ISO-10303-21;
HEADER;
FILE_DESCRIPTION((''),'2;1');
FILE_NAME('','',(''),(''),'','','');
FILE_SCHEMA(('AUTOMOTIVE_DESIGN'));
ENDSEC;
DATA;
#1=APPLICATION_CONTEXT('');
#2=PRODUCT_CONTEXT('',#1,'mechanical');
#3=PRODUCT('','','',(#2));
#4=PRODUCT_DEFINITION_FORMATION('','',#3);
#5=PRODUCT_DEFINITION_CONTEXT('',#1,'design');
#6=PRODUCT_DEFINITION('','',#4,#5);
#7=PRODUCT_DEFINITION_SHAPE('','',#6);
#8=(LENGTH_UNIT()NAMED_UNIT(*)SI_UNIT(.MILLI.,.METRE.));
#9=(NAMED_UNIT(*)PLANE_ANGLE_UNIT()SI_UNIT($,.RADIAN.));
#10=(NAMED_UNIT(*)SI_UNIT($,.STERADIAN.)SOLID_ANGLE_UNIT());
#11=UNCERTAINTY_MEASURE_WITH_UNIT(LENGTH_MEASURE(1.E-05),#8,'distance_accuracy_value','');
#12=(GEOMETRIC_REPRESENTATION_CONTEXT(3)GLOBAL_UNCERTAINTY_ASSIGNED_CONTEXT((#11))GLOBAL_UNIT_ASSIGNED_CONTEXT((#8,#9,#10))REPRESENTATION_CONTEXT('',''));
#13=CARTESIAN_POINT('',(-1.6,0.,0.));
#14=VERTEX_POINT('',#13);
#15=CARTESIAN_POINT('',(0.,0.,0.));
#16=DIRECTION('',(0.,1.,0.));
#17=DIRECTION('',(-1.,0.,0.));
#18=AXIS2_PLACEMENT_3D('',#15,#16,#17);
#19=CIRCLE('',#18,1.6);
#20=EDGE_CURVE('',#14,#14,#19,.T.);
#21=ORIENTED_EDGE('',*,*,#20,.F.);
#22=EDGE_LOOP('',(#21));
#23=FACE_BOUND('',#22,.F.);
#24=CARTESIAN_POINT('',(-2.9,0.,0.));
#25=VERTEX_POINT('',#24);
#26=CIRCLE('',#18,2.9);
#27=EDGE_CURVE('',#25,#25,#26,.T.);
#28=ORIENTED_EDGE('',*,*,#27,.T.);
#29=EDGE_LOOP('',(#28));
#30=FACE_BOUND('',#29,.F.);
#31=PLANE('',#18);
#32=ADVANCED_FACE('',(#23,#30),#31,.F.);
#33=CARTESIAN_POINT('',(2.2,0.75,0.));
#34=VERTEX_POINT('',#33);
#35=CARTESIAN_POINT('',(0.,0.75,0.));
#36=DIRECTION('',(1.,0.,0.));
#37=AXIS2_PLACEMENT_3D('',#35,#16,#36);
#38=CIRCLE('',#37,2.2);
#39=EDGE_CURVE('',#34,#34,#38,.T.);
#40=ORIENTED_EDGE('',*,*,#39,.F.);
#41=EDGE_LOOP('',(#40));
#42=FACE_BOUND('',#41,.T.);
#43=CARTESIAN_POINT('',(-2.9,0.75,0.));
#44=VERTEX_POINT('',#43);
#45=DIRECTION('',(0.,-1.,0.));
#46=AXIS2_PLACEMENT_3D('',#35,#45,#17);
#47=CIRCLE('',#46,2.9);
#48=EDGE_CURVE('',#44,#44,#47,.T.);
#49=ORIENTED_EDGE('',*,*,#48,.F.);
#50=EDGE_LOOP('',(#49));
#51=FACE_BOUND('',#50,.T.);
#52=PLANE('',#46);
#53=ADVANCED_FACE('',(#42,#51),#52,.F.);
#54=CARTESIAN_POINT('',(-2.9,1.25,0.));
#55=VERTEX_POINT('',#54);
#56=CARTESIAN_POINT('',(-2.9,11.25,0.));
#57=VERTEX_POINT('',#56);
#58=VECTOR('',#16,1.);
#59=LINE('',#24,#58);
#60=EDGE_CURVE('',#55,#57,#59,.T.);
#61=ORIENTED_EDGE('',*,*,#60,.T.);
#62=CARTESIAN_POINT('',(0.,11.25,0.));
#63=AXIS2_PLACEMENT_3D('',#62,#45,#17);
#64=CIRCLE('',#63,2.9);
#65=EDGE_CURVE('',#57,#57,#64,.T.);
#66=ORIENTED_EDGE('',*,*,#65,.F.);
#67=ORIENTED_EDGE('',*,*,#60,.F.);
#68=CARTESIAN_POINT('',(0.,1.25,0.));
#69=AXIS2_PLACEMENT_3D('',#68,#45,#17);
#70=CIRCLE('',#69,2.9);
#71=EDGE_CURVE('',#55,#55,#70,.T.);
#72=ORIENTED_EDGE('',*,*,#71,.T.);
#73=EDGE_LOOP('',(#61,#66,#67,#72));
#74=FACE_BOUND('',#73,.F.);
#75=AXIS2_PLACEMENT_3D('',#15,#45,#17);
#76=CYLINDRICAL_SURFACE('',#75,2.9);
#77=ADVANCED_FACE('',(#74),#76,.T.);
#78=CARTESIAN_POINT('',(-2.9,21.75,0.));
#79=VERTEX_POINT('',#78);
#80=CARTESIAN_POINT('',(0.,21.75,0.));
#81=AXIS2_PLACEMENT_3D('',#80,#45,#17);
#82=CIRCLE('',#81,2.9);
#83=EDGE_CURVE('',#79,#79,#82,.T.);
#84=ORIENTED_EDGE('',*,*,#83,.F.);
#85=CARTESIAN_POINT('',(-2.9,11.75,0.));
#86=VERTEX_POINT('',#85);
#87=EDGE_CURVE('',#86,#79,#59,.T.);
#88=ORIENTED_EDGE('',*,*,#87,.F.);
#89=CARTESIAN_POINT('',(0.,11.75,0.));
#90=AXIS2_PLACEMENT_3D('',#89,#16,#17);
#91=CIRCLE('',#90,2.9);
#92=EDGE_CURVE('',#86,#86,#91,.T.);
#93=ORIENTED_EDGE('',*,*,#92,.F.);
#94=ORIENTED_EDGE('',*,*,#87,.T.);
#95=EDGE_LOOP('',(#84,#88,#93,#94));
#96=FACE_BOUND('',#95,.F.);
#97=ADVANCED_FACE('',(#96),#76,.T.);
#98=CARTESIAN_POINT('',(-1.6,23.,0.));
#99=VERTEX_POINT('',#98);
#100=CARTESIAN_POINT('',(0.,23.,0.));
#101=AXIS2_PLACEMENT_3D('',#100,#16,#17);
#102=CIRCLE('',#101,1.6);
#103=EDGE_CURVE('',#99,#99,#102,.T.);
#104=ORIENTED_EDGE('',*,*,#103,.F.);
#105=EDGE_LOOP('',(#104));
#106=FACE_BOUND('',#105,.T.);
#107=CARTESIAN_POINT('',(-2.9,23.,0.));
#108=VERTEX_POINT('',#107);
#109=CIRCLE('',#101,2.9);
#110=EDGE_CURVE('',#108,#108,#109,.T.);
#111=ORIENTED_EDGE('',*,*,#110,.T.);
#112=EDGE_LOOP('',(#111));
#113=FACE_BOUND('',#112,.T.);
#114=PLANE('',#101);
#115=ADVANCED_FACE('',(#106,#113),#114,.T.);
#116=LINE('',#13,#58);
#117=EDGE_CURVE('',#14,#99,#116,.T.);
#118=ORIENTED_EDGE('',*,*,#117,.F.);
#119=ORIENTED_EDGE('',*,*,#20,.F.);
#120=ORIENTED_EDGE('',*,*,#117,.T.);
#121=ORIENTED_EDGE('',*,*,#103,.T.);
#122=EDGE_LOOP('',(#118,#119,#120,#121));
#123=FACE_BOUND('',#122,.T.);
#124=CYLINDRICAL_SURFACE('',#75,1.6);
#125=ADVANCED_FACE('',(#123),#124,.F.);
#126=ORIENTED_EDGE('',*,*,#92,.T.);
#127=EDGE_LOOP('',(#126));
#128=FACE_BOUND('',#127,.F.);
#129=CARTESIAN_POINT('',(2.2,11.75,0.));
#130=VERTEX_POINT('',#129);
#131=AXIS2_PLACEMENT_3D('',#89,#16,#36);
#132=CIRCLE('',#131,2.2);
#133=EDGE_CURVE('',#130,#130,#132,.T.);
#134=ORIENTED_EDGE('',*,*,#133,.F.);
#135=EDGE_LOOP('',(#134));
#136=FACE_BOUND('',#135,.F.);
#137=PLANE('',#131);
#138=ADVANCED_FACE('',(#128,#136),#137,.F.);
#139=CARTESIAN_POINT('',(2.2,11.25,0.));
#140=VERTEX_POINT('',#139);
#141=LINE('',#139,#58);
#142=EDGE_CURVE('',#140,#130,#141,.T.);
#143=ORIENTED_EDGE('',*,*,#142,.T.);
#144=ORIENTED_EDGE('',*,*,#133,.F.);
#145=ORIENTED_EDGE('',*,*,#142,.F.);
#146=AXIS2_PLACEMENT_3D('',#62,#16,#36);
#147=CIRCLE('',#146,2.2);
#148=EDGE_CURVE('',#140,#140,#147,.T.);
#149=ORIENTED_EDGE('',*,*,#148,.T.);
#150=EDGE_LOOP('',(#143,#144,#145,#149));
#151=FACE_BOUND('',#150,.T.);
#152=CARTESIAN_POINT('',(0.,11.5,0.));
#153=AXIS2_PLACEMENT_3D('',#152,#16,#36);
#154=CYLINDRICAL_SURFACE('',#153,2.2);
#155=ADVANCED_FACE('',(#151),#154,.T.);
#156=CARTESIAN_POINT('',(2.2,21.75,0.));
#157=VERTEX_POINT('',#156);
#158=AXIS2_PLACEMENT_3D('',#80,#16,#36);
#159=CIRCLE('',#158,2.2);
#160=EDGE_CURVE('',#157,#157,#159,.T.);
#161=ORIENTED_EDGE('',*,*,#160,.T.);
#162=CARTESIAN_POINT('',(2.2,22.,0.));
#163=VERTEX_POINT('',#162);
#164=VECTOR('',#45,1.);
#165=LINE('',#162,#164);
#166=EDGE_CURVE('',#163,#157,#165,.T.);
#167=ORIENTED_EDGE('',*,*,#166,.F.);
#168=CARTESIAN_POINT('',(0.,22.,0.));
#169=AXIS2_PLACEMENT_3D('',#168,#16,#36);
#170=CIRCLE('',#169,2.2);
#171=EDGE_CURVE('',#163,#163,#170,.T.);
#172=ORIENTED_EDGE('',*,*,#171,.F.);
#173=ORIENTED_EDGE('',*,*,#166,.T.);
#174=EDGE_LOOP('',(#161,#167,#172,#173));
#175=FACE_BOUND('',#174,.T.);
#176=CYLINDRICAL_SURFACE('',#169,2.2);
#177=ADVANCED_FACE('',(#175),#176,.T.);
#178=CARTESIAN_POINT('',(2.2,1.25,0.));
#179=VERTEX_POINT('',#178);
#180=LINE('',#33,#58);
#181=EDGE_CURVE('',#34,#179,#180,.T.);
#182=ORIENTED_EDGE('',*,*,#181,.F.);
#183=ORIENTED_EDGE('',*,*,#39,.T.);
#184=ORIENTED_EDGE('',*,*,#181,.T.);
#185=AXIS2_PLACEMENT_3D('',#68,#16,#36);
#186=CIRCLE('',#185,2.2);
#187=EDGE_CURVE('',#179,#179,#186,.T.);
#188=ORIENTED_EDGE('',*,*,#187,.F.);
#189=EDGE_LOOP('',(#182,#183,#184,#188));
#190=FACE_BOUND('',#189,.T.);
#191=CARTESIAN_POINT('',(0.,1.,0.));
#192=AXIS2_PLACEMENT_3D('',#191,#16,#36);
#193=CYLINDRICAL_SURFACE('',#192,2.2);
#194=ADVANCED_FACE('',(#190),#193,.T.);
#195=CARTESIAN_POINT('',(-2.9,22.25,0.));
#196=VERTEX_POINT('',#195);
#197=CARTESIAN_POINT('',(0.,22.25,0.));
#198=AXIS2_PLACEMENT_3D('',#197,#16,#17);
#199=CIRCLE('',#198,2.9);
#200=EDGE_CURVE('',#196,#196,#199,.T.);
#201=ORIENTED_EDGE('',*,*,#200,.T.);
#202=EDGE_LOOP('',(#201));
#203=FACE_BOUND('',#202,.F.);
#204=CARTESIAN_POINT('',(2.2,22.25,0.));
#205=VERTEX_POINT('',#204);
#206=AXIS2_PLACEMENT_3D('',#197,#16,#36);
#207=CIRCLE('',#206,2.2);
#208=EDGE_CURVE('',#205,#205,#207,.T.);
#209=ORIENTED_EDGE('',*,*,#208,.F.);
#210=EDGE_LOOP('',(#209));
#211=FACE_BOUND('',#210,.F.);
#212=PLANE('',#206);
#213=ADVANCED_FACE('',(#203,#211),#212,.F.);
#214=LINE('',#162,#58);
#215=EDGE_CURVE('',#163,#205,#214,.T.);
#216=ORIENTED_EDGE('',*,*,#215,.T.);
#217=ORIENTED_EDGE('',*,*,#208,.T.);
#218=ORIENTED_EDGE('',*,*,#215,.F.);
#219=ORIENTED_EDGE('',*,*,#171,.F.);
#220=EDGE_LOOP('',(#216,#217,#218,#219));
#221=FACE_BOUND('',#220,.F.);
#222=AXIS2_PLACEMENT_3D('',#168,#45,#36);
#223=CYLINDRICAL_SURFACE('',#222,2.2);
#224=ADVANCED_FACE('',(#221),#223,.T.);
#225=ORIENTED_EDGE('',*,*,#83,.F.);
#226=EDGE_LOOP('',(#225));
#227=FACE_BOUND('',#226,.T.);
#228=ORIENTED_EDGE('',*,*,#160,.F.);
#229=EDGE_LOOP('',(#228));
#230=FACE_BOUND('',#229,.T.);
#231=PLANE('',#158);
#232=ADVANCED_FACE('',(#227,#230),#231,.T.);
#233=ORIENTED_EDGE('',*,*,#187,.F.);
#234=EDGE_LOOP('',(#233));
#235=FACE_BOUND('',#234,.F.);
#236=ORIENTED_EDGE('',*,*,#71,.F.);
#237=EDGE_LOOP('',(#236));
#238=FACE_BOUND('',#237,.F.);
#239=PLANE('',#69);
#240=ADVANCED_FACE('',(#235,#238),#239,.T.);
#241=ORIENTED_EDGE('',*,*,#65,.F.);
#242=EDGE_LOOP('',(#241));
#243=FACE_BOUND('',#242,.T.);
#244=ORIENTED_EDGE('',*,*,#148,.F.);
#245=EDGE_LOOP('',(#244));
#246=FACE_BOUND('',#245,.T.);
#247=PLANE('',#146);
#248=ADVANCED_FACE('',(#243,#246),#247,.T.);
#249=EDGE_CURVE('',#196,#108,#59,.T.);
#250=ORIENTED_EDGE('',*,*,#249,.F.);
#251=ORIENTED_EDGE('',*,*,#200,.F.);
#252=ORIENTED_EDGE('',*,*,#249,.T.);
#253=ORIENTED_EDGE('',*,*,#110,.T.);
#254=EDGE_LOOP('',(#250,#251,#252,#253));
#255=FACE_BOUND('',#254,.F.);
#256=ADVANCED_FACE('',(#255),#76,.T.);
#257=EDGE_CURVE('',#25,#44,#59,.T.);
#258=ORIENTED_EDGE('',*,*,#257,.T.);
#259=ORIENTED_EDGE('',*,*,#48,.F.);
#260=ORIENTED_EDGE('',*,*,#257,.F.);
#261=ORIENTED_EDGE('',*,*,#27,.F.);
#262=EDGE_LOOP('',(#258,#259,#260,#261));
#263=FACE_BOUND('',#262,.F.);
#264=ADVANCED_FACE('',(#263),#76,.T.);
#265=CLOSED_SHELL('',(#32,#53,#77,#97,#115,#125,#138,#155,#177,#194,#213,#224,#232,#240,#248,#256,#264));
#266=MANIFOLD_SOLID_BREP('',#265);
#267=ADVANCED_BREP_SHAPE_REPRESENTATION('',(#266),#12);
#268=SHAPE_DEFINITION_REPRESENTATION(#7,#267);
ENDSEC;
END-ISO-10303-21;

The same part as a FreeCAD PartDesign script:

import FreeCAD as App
import Part
import Sketcher

V = App.Vector
Q = App.Units.Quantity

doc = App.newDocument("Part")
body = doc.addObject("PartDesign::Body", "Body")

# Sketch on XZ plane
sketch1 = doc.addObject("Sketcher::SketchObject", "Sketch")
body.addObject(sketch1)
sketch1.AttachmentSupport = (doc.XZ_Plane, [""])
sketch1.MapMode = "FlatFace"
sketch1.addGeometry(Part.Circle(V(0, 0, 0), V(0, 0, 1), 2.9), False)
sketch1.addGeometry(Part.Circle(V(0, 0, 0), V(0, 0, 1), 1.6), False)
sketch1.addConstraint(Sketcher.Constraint("Coincident", 0, 3, -1, 1))
sketch1.addConstraint(Sketcher.Constraint("Coincident", 1, 3, -1, 1))
sketch1.addConstraint(Sketcher.Constraint("Diameter", 0, Q("5.8 mm")))
sketch1.addConstraint(Sketcher.Constraint("Diameter", 1, Q("3.2 mm")))
pad1 = doc.addObject("PartDesign::Pad", "Pad")
body.addObject(pad1)
pad1.Profile = sketch1
pad1.Length = 23
pad1.Reversed = True

# Sketch on XZ plane
sketch2 = doc.addObject("Sketcher::SketchObject", "Sketch001")
body.addObject(sketch2)
sketch2.AttachmentSupport = (doc.XZ_Plane, [""])
sketch2.MapMode = "FlatFace"
sketch2.AttachmentOffset = App.Placement(V(0, 0, -11.5), App.Rotation())
sketch2.addGeometry(Part.Circle(V(0, 0, 0), V(0, 0, 1), 2.9), False)
sketch2.addGeometry(Part.Circle(V(0, 0, 0), V(0, 0, 1), 2.2), False)
sketch2.addConstraint(Sketcher.Constraint("Coincident", 0, 3, -1, 1))
sketch2.addConstraint(Sketcher.Constraint("Coincident", 1, 3, -1, 1))
sketch2.addConstraint(Sketcher.Constraint("Diameter", 0, Q("5.8 mm")))
sketch2.addConstraint(Sketcher.Constraint("Diameter", 1, Q("4.4 mm")))
pocket1 = doc.addObject("PartDesign::Pocket", "Pocket")
body.addObject(pocket1)
pocket1.Profile = sketch2
pocket1.Length = 0.5
pocket1.Midplane = True

# Sketch on XZ plane
sketch3 = doc.addObject("Sketcher::SketchObject", "Sketch002")
body.addObject(sketch3)
sketch3.AttachmentSupport = (doc.XZ_Plane, [""])
sketch3.MapMode = "FlatFace"
sketch3.AttachmentOffset = App.Placement(V(0, 0, -22), App.Rotation())
sketch3.addGeometry(Part.Circle(V(0, 0, 0), V(0, 0, 1), 2.9), False)
sketch3.addGeometry(Part.Circle(V(0, 0, 0), V(0, 0, 1), 2.2), False)
sketch3.addConstraint(Sketcher.Constraint("Coincident", 0, 3, -1, 1))
sketch3.addConstraint(Sketcher.Constraint("Coincident", 1, 3, -1, 1))
sketch3.addConstraint(Sketcher.Constraint("Diameter", 0, Q("5.8 mm")))
sketch3.addConstraint(Sketcher.Constraint("Diameter", 1, Q("4.4 mm")))
pocket2 = doc.addObject("PartDesign::Pocket", "Pocket001")
body.addObject(pocket2)
pocket2.Profile = sketch3
pocket2.Length = 0.5
pocket2.Midplane = True
doc.recompute()

datumplane = doc.addObject("PartDesign::Plane", "DatumPlane")
body.addObject(datumplane)
datumplane.AttachmentSupport = (doc.XZ_Plane, [""])
datumplane.MapMode = "FlatFace"
datumplane.AttachmentOffset = App.Placement(V(0, 0, -11.5), App.Rotation())
mirrored = doc.addObject("PartDesign::Mirrored", "Mirrored")
body.addObject(mirrored)
mirrored.Originals = [pocket2]
mirrored.MirrorPlane = (datumplane, [""])
body.Tip = mirrored

doc.recompute()
